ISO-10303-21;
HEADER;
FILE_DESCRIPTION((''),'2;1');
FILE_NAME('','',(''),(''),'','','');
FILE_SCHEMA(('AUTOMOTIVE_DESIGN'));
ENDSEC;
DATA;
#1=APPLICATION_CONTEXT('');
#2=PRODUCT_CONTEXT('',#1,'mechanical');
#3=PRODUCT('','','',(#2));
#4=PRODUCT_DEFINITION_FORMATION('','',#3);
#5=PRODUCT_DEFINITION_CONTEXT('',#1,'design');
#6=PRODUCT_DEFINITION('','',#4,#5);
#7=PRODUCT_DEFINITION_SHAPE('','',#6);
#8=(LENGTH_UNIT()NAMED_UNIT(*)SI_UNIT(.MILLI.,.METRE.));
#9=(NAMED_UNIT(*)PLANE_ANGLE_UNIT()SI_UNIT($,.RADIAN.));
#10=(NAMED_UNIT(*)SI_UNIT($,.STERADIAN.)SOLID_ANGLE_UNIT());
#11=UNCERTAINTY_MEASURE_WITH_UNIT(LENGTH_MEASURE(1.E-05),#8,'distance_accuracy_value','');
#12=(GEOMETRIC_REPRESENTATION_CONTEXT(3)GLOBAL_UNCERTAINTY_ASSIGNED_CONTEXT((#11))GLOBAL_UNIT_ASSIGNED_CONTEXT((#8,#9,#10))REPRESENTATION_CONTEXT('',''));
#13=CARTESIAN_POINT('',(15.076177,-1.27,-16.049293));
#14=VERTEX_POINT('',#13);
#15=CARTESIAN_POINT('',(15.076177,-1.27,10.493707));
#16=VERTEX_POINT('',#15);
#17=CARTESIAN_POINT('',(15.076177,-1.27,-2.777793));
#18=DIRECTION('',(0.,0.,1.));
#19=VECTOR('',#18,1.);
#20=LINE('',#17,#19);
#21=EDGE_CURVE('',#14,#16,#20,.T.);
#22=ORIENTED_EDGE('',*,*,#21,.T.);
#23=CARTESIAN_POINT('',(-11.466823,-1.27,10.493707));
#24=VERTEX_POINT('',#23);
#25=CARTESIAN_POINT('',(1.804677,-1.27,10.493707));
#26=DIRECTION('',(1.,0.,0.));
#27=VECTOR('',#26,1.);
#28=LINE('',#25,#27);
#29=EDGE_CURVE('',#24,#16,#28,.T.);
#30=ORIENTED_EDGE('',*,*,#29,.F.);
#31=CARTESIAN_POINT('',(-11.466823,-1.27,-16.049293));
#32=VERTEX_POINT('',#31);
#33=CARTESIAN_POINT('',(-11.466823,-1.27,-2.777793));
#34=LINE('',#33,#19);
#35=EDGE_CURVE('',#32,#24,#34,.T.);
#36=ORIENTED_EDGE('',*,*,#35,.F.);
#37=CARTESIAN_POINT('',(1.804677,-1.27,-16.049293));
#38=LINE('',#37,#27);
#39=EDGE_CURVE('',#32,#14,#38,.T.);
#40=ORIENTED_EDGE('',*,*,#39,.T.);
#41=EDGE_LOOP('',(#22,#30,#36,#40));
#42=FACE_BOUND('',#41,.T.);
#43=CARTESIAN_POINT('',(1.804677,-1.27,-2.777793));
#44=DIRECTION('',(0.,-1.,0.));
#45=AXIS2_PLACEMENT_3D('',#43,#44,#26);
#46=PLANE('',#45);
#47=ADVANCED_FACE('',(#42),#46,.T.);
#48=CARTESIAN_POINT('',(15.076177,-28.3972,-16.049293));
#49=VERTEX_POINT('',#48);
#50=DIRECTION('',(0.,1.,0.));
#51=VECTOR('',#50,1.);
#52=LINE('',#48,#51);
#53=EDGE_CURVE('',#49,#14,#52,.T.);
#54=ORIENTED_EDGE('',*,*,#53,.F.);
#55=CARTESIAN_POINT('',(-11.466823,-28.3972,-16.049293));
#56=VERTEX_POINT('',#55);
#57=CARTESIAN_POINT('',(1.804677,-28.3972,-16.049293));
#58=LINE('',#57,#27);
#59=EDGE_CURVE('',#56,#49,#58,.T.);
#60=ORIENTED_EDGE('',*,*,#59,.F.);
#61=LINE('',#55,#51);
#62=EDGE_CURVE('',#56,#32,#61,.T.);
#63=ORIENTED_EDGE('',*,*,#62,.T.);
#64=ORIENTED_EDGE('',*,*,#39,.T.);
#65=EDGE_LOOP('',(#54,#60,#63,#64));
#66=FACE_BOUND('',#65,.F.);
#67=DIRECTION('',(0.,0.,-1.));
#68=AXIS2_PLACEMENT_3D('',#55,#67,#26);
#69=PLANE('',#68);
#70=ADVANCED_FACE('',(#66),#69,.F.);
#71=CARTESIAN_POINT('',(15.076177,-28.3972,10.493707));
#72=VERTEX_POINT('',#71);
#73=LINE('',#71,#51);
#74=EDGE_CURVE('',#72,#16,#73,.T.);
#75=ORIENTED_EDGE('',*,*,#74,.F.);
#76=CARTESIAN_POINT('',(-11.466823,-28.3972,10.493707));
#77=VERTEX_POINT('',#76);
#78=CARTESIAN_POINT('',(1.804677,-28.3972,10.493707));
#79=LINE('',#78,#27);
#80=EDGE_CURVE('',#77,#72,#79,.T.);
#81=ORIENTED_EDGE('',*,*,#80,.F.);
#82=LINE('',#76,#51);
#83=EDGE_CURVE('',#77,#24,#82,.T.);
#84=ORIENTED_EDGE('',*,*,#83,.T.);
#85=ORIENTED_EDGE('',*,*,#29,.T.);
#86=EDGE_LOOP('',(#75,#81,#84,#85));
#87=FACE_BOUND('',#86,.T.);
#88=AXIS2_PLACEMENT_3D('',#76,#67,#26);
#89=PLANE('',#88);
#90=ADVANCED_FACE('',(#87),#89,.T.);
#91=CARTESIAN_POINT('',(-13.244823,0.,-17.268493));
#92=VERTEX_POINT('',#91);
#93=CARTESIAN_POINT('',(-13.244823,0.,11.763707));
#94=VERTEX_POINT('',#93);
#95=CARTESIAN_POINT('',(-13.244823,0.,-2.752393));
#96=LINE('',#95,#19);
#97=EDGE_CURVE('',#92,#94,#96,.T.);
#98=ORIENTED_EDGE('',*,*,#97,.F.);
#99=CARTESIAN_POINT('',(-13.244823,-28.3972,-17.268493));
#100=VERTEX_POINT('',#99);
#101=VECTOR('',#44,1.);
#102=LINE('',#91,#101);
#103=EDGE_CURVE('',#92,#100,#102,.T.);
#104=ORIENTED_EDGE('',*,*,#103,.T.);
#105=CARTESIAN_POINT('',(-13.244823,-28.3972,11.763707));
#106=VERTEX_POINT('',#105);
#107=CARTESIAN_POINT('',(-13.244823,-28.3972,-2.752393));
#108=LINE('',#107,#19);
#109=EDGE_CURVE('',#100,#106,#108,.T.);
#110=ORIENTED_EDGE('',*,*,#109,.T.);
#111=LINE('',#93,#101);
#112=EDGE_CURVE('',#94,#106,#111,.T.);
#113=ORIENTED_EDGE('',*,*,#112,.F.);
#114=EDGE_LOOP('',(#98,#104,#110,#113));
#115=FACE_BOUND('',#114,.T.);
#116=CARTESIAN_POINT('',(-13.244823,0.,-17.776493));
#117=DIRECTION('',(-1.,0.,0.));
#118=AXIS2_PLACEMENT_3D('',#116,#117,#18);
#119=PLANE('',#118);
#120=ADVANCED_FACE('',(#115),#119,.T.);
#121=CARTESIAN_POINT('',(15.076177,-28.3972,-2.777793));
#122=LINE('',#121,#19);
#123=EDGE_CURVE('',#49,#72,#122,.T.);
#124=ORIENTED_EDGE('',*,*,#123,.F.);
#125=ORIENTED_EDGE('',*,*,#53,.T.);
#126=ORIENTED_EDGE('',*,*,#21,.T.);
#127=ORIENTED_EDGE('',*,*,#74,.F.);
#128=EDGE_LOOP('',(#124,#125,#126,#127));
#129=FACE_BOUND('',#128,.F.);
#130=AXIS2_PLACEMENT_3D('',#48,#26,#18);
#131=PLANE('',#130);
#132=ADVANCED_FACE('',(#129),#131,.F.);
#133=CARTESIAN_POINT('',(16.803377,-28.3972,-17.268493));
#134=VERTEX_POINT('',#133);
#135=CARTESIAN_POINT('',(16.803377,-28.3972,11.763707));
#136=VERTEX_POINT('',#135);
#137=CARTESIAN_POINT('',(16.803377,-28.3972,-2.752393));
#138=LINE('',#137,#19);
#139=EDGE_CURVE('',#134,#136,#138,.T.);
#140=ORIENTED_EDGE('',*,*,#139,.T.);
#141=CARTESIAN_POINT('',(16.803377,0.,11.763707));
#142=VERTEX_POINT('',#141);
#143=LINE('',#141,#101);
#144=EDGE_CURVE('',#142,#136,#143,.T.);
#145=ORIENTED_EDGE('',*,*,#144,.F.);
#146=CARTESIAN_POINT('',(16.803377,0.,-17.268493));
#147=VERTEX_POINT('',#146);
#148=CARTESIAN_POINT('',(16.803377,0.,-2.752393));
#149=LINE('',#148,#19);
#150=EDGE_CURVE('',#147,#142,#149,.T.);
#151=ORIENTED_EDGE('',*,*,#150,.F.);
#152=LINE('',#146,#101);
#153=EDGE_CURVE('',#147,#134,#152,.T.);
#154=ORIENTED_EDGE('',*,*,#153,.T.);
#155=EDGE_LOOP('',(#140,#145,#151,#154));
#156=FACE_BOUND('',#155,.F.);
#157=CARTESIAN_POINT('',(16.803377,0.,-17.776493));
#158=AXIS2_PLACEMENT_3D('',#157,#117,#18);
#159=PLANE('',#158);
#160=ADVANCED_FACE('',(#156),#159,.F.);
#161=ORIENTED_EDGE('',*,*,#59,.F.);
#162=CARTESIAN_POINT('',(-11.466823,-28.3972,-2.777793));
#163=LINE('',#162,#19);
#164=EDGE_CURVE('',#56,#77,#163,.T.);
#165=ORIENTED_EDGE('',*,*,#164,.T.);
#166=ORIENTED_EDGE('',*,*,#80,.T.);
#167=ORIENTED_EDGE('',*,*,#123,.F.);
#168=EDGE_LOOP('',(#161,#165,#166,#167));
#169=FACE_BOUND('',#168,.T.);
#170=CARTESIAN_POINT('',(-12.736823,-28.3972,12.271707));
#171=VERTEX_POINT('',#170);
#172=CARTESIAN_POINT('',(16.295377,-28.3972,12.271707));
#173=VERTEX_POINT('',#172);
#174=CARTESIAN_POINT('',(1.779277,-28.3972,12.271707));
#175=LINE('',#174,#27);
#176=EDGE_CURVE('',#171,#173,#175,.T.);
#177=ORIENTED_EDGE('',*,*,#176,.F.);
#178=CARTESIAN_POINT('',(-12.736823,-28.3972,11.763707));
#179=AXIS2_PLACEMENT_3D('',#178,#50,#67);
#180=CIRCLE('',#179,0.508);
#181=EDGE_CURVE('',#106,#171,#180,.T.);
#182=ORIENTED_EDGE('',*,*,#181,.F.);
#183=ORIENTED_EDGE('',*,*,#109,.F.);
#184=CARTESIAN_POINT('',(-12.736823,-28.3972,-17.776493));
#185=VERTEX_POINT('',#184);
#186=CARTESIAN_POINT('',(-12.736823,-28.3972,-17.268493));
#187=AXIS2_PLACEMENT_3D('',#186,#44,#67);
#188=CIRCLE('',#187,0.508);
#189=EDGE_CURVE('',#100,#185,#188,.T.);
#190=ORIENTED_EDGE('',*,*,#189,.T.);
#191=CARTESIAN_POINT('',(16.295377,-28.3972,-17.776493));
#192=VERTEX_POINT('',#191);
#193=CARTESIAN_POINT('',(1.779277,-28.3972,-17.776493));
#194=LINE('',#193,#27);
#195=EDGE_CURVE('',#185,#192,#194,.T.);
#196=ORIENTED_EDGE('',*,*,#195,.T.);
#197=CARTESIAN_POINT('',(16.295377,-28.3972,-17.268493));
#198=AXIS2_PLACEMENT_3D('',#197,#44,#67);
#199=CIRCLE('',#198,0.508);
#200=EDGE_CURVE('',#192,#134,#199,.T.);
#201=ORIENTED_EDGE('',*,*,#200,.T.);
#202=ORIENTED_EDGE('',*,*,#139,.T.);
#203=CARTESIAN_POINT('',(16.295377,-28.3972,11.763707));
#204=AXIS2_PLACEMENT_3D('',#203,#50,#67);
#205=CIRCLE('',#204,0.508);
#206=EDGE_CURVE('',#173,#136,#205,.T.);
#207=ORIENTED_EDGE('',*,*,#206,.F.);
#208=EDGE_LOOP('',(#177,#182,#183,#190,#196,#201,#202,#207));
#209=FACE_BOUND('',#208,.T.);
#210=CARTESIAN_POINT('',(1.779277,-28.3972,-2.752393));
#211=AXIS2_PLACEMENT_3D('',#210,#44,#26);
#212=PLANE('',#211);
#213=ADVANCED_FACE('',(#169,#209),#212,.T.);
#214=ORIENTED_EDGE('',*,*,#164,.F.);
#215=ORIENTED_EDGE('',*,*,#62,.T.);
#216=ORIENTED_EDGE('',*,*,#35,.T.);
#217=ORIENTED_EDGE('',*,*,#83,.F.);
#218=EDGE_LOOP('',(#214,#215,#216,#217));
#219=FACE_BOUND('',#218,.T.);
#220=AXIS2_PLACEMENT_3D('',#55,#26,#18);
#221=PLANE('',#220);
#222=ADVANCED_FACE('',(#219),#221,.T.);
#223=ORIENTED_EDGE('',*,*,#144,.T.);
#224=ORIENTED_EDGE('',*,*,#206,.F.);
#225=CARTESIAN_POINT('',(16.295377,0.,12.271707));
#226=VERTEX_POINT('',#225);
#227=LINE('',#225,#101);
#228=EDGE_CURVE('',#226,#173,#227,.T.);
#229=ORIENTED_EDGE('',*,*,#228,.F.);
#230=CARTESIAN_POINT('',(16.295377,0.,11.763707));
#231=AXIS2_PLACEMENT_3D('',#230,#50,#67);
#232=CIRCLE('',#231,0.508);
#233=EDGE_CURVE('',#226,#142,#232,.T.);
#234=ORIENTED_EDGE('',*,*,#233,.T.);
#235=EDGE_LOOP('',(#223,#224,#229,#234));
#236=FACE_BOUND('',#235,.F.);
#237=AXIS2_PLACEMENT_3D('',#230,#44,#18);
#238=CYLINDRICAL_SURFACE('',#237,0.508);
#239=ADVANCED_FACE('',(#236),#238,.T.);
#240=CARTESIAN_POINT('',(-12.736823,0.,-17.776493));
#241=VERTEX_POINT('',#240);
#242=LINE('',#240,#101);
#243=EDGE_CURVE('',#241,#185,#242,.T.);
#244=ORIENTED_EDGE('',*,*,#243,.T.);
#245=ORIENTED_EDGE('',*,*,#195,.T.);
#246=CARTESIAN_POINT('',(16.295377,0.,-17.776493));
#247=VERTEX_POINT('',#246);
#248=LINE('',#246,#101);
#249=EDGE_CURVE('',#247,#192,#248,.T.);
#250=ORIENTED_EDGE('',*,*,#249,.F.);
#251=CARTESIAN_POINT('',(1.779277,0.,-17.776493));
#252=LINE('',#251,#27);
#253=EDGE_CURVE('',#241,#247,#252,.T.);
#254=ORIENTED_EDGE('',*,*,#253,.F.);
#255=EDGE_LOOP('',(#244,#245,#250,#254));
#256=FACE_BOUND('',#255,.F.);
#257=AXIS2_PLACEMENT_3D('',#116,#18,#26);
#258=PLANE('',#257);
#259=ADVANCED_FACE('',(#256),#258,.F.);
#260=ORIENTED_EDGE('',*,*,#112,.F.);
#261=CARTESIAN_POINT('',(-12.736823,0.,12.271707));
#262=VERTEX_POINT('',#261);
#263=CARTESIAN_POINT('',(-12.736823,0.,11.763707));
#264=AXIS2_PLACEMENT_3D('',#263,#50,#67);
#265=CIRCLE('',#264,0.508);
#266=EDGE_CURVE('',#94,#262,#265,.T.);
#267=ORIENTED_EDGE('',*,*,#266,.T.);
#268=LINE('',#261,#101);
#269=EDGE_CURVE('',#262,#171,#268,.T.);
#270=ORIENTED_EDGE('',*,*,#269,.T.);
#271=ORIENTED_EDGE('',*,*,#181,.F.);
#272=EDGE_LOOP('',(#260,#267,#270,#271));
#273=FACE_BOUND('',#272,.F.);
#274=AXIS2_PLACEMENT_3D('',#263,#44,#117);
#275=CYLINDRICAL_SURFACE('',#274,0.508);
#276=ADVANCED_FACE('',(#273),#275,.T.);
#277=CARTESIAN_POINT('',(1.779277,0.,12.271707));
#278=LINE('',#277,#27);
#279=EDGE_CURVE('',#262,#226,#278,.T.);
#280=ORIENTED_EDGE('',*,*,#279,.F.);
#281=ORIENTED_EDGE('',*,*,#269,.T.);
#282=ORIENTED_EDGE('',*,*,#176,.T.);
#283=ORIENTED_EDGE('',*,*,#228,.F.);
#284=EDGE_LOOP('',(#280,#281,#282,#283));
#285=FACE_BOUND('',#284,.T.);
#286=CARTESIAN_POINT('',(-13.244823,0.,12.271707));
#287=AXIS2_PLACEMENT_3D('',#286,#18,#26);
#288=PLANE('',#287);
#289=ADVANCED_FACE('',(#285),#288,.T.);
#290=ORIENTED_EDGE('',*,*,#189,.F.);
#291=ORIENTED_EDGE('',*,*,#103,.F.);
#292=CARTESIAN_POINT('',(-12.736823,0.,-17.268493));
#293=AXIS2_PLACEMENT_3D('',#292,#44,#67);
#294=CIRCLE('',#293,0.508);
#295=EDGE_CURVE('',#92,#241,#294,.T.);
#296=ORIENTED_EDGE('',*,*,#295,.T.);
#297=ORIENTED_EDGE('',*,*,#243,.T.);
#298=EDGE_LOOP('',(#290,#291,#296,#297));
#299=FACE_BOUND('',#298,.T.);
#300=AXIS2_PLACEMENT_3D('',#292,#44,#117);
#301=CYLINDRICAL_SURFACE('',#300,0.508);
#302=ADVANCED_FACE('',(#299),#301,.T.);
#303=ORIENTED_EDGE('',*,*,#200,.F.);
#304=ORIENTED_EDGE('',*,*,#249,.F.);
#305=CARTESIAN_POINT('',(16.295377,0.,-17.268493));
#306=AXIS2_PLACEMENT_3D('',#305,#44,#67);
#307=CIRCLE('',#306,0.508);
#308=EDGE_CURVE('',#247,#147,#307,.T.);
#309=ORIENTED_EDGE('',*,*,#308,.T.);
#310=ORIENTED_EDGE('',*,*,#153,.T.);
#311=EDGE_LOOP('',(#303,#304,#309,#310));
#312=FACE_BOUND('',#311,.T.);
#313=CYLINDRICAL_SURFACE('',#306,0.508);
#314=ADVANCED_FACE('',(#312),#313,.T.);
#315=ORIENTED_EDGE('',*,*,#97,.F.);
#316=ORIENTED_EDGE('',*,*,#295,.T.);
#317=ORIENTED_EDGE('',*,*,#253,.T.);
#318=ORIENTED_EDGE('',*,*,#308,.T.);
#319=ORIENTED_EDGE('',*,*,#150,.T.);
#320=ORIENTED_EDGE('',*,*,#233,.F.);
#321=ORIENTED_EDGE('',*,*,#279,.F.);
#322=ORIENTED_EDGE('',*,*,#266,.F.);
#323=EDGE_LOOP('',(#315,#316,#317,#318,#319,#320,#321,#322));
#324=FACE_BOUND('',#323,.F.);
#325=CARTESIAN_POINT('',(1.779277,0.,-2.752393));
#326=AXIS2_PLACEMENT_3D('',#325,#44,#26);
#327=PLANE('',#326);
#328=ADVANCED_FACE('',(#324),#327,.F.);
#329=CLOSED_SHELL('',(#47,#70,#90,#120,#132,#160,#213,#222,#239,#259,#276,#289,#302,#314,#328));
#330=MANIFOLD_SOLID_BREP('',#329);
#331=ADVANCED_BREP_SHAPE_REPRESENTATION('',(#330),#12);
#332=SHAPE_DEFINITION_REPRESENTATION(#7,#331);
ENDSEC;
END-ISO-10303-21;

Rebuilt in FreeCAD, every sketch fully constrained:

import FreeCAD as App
import Part
import Sketcher
Q = App.Units.Quantity


def edges_at(feature, points):
    """Names of the edges that pass closest to the given points."""
    edges = feature.Shape.Edges
    near = lambda p: min(range(len(edges)), key=lambda i: edges[i].distToShape(Part.Vertex(*p))[0])
    return sorted({f"Edge{near(p) + 1}" for p in points})

doc = App.newDocument("Part")
body = doc.addObject("PartDesign::Body", "Body")

sketch1 = doc.addObject("Sketcher::SketchObject", "Sketch")
body.addObject(sketch1)
sketch1.AttachmentSupport = (doc.XZ_Plane, [""])
sketch1.MapMode = "FlatFace"
sketch1.addGeometry(Part.LineSegment(App.Vector(-13.244823, 12.271707, 0), App.Vector(-13.244823, -17.776493, 0)), False)
sketch1.addGeometry(Part.LineSegment(App.Vector(-13.244823, -17.776493, 0), App.Vector(16.803377, -17.776493, 0)), False)
sketch1.addGeometry(Part.LineSegment(App.Vector(16.803377, -17.776493, 0), App.Vector(16.803377, 12.271707, 0)), False)
sketch1.addGeometry(Part.LineSegment(App.Vector(16.803377, 12.271707, 0), App.Vector(-13.244823, 12.271707, 0)), False)
sketch1.addConstraint(Sketcher.Constraint("Coincident", 0, 2, 1, 1))
sketch1.addConstraint(Sketcher.Constraint("Coincident", 1, 2, 2, 1))
sketch1.addConstraint(Sketcher.Constraint("Coincident", 2, 2, 3, 1))
sketch1.addConstraint(Sketcher.Constraint("Coincident", 3, 2, 0, 1))
sketch1.addConstraint(Sketcher.Constraint("Vertical", 0))
sketch1.addConstraint(Sketcher.Constraint("Horizontal", 1))
sketch1.addConstraint(Sketcher.Constraint("Vertical", 2))
sketch1.addConstraint(Sketcher.Constraint("Horizontal", 3))
sketch1.addConstraint(Sketcher.Constraint("Equal", 3, 0))
sketch1.addConstraint(Sketcher.Constraint("DistanceX", 1, 1, 1, 2, Q("1.183 in")))
sketch1.addConstraint(Sketcher.Constraint("DistanceX", 0, 2, -1, 1, Q("13.244823 mm")))
sketch1.addConstraint(Sketcher.Constraint("DistanceY", 0, 2, -1, 1, Q("17.776493 mm")))
pad1 = doc.addObject("PartDesign::Pad", "Pad")
body.addObject(pad1)
pad1.Profile = sketch1
pad1.Length = Q("1.118 in")

sketch2 = doc.addObject("Sketcher::SketchObject", "Sketch001")
body.addObject(sketch2)
sketch2.AttachmentSupport = (doc.XZ_Plane, [""])
sketch2.MapMode = "FlatFace"
sketch2.AttachmentOffset = App.Placement(App.Vector(0, 0, 1.118 * 25.4), App.Rotation())
sketch2.addGeometry(Part.LineSegment(App.Vector(-11.466823, 10.493707, 0), App.Vector(-11.466823, -16.049293, 0)), False)
sketch2.addGeometry(Part.LineSegment(App.Vector(-11.466823, -16.049293, 0), App.Vector(15.076177, -16.049293, 0)), False)
sketch2.addGeometry(Part.LineSegment(App.Vector(15.076177, -16.049293, 0), App.Vector(15.076177, 10.493707, 0)), False)
sketch2.addGeometry(Part.LineSegment(App.Vector(15.076177, 10.493707, 0), App.Vector(-11.466823, 10.493707, 0)), False)
sketch2.addConstraint(Sketcher.Constraint("Coincident", 0, 2, 1, 1))
sketch2.addConstraint(Sketcher.Constraint("Coincident", 1, 2, 2, 1))
sketch2.addConstraint(Sketcher.Constraint("Coincident", 2, 2, 3, 1))
sketch2.addConstraint(Sketcher.Constraint("Coincident", 3, 2, 0, 1))
sketch2.addConstraint(Sketcher.Constraint("Vertical", 0))
sketch2.addConstraint(Sketcher.Constraint("Horizontal", 1))
sketch2.addConstraint(Sketcher.Constraint("Vertical", 2))
sketch2.addConstraint(Sketcher.Constraint("Horizontal", 3))
sketch2.addConstraint(Sketcher.Constraint("Equal", 3, 0))
sketch2.addConstraint(Sketcher.Constraint("DistanceX", 1, 1, 1, 2, Q("1.045 in")))
sketch2.addConstraint(Sketcher.Constraint("DistanceX", 0, 2, -1, 1, Q("11.466823 mm")))
sketch2.addConstraint(Sketcher.Constraint("DistanceY", 0, 2, -1, 1, Q("16.049293 mm")))
pocket1 = doc.addObject("PartDesign::Pocket", "Pocket")
body.addObject(pocket1)
pocket1.Profile = sketch2
pocket1.Length = Q("1.068 in")
doc.recompute()

fillet = doc.addObject("PartDesign::Fillet", "Fillet")
body.addObject(fillet)
fillet.Base = (pocket1, edges_at(pocket1, [
    (-13.245, -14.199, 12.272),
    (-13.245, -14.199, -17.776),
    (16.803, -14.199, 12.272),
    (16.803, -14.199, -17.776),
]))
fillet.Radius = Q("0.02 in")

doc.recompute()
